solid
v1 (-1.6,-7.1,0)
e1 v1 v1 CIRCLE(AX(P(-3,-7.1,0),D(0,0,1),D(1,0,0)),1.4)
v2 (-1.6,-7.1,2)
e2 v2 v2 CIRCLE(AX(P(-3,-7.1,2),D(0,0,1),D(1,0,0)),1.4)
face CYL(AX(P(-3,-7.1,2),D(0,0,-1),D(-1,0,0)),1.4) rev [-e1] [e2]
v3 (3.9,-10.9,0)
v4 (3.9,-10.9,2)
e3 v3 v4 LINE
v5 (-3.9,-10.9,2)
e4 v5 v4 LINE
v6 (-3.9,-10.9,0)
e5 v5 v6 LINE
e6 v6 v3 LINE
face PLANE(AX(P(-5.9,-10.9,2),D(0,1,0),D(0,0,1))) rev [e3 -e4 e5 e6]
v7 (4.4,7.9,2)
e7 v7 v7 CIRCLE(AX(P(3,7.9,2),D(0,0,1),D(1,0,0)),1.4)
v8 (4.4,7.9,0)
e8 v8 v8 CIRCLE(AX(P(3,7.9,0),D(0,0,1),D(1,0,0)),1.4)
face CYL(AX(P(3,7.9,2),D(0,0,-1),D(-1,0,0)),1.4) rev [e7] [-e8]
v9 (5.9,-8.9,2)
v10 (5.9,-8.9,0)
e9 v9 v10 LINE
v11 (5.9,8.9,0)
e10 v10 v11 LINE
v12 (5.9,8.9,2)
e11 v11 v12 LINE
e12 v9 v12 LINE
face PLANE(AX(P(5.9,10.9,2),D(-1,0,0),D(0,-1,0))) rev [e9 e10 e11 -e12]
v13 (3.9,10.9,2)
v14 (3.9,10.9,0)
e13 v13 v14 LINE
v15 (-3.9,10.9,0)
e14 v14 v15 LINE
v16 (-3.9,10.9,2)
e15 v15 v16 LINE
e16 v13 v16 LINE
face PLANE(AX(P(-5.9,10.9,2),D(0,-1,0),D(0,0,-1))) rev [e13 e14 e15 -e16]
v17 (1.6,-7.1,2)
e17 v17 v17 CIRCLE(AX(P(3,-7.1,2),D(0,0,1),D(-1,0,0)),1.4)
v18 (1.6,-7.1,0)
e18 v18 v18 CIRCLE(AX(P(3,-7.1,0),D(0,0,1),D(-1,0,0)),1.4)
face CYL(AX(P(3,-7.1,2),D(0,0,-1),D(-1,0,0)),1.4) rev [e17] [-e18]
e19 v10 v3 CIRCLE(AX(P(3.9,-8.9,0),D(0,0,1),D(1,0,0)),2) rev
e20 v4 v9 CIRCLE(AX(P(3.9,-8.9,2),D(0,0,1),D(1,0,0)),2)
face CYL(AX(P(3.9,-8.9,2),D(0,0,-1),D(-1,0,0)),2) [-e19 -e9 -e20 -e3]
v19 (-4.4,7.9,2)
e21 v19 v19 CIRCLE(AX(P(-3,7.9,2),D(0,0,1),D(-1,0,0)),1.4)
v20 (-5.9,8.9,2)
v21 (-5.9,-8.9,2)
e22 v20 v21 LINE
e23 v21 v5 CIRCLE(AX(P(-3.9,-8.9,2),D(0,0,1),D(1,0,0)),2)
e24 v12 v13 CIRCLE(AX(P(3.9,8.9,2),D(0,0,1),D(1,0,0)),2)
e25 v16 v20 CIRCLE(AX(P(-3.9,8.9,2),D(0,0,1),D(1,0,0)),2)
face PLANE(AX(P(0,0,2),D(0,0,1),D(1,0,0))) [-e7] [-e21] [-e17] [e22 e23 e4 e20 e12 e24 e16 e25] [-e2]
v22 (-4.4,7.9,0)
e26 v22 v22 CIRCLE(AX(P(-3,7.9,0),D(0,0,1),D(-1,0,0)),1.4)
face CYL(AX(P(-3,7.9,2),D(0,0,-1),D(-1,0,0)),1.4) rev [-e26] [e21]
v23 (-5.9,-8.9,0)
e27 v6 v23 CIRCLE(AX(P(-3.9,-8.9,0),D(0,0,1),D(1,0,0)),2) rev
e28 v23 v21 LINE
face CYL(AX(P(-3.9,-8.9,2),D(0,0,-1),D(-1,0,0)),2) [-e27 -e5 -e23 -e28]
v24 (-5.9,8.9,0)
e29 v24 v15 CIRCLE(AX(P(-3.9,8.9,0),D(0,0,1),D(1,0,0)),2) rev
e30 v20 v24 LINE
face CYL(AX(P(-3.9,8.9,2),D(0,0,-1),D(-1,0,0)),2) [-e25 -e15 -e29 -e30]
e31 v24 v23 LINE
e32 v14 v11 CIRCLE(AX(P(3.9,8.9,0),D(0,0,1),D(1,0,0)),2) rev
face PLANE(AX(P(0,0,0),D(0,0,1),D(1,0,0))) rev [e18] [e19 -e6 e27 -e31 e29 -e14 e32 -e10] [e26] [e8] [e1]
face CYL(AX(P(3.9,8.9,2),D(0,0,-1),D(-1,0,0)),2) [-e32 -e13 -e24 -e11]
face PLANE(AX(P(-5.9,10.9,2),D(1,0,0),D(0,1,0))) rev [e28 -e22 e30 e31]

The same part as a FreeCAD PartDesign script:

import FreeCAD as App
import Part
import Sketcher


def edges_at(feature, points):
    """Names of the edges that pass closest to the given points."""
    edges = feature.Shape.Edges
    near = lambda p: min(range(len(edges)), key=lambda i: edges[i].distToShape(Part.Vertex(*p))[0])
    return sorted({f"Edge{near(p) + 1}" for p in points})

doc = App.newDocument("Part")
params = doc.addObject("Spreadsheet::Sheet", "Params")
for row, (alias, value) in enumerate([
    ("sketch1_diameter", "2.8 mm"),
    ("sketch1_width", "11.8 mm"),
    ("sketch1_height", "21.8 mm"),
    ("pad1_length", "2 mm"),
    ("fillet_radius", "2 mm"),
], start=1):
    params.set(f"A{row}", alias)
    params.set(f"B{row}", "=" + value)
    params.setAlias(f"B{row}", alias)

body = doc.addObject("PartDesign::Body", "Body")

# Sketch on XY plane
sketch1 = doc.addObject("Sketcher::SketchObject", "Sketch")
body.addObject(sketch1)
sketch1.AttachmentSupport = (doc.XY_Plane, [""])
sketch1.MapMode = "FlatFace"
sketch1.addGeometry([
    Part.LineSegment(App.Vector(-5.9, 10.9, 0), App.Vector(-5.9, -10.9, 0)),  # 0
    Part.LineSegment(App.Vector(-5.9, -10.9, 0), App.Vector(5.9, -10.9, 0)),  # 1
    Part.LineSegment(App.Vector(5.9, -10.9, 0), App.Vector(5.9, 10.9, 0)),  # 2
    Part.LineSegment(App.Vector(5.9, 10.9, 0), App.Vector(-5.9, 10.9, 0)),  # 3
    Part.Circle(App.Vector(-3, -7.1, 0), App.Vector(0, 0, 1), 1.4),  # 4
    Part.Circle(App.Vector(3, -7.1, 0), App.Vector(0, 0, 1), 1.4),  # 5
    Part.Circle(App.Vector(-3, 7.9, 0), App.Vector(0, 0, 1), 1.4),  # 6
    Part.Circle(App.Vector(3, 7.9, 0), App.Vector(0, 0, 1), 1.4),  # 7
], False)
sketch1.addConstraint([
    Sketcher.Constraint("Coincident", 0, 2, 1, 1),
    Sketcher.Constraint("Coincident", 1, 2, 2, 1),
    Sketcher.Constraint("Coincident", 2, 2, 3, 1),
    Sketcher.Constraint("Coincident", 3, 2, 0, 1),
    Sketcher.Constraint("Vertical", 0),
    Sketcher.Constraint("Horizontal", 1),
    Sketcher.Constraint("Vertical", 2),
    Sketcher.Constraint("Horizontal", 3),
    Sketcher.Constraint("Equal", 4, 5),
    Sketcher.Constraint("Equal", 5, 6),
    Sketcher.Constraint("Equal", 6, 7),
    Sketcher.Constraint("Symmetric", 0, 2, 2, 2, -1, 1),
    Sketcher.Constraint("Symmetric", 4, 3, 5, 3, -2),
    Sketcher.Constraint("Symmetric", 6, 3, 7, 3, -2),
    Sketcher.Constraint("Vertical", 4, 3, 6, 3),
    Sketcher.Constraint("Diameter", 4, 2.8),
    Sketcher.Constraint("DistanceX", 1, 1, 1, 2, 11.8),
    Sketcher.Constraint("DistanceY", 0, 2, 0, 1, 21.8),
    Sketcher.Constraint("DistanceX", 4, 3, -1, 1, 3.0),
    Sketcher.Constraint("DistanceY", 4, 3, 6, 3, 15.0),
    Sketcher.Constraint("DistanceY", 7, 3, 2, 2, 3.0),
])
sketch1.setExpression("Constraints[15]", "Params.sketch1_diameter")
sketch1.setExpression("Constraints[16]", "Params.sketch1_width")
sketch1.setExpression("Constraints[17]", "Params.sketch1_height")
pad1 = doc.addObject("PartDesign::Pad", "Pad")
body.addObject(pad1)
pad1.Profile = sketch1
pad1.setExpression("Length", "Params.pad1_length")
doc.recompute()

fillet = doc.addObject("PartDesign::Fillet", "Fillet")
body.addObject(fillet)
fillet.Base = (pad1, edges_at(pad1, [
    (5.9, -10.9, 1),
    (-5.9, -10.9, 1),
    (-5.9, 10.9, 1),
    (5.9, 10.9, 1),
]))
fillet.setExpression("Radius", "Params.fillet_radius")

doc.recompute()
